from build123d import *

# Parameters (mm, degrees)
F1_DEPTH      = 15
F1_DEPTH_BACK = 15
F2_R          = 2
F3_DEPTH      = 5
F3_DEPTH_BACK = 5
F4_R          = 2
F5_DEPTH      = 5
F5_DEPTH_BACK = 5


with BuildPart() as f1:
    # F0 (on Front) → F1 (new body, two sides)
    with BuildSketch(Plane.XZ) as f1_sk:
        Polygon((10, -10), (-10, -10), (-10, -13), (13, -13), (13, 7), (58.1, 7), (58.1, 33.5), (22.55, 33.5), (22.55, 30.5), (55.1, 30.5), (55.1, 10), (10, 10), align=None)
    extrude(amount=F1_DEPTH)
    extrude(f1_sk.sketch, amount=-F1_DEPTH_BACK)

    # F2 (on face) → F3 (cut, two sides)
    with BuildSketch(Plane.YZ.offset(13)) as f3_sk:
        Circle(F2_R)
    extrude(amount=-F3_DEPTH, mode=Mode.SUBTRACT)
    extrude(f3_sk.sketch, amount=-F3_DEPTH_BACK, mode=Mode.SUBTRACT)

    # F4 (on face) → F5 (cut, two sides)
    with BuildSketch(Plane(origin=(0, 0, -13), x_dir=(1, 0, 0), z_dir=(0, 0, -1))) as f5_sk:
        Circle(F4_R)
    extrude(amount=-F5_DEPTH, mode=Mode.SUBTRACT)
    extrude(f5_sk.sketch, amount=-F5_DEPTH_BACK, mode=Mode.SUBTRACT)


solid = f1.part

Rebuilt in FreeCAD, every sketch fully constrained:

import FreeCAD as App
import Part
import Sketcher

V = App.Vector


def add_polygon(sketch, points):
    """Adds a closed chain of lines whose ends are joined by coincident constraints."""
    first, n = sketch.GeometryCount, len(points)
    for a, b in zip(points, points[1:] + points[:1]):
        sketch.addGeometry(Part.LineSegment(App.Vector(*a, 0), App.Vector(*b, 0)), False)
    for i in range(n):
        sketch.addConstraint(Sketcher.Constraint("Coincident", first + i, 2, first + (i + 1) % n, 1))

doc = App.newDocument("Part")
params = doc.addObject("Spreadsheet::Sheet", "Params")
for row, (alias, value) in enumerate([
    ("sketch1_width", "20 mm"),
    ("sketch1_width2", "23 mm"),
    ("sketch1_height", "3 mm"),
    ("sketch1_width3", "45.1 mm"),
    ("sketch1_height2", "26.5 mm"),
    ("pad1_length", "15 mm"),
    ("pad1_length2", "15 mm"),
    ("sketch2_diameter", "4 mm"),
    ("pocket1_length", "5 mm"),
    ("pocket2_length", "5 mm"),
    ("sketch3_diameter", "4 mm"),
    ("pocket3_length", "5 mm"),
    ("pocket4_length", "5 mm"),
], start=1):
    params.set(f"A{row}", alias)
    params.set(f"B{row}", "=" + value)
    params.setAlias(f"B{row}", alias)

body = doc.addObject("PartDesign::Body", "Body")

# Sketch on XZ plane
sketch1 = doc.addObject("Sketcher::SketchObject", "Sketch")
body.addObject(sketch1)
sketch1.AttachmentSupport = (doc.XZ_Plane, [""])
sketch1.MapMode = "FlatFace"
add_polygon(sketch1, [(10, -10), (-10, -10), (-10, -13), (13, -13), (13, 7), (58.1, 7), (58.1, 33.5), (22.6, 33.5), (22.6, 30.5), (55.1, 30.5), (55.1, 10), (10, 10)])  # lines 0-11
sketch1.addConstraint([
    Sketcher.Constraint("Horizontal", 0),
    Sketcher.Constraint("Vertical", 1),
    Sketcher.Constraint("Horizontal", 2),
    Sketcher.Constraint("Vertical", 3),
    Sketcher.Constraint("Horizontal", 4),
    Sketcher.Constraint("Vertical", 5),
    Sketcher.Constraint("Horizontal", 6),
    Sketcher.Constraint("Vertical", 7),
    Sketcher.Constraint("Horizontal", 8),
    Sketcher.Constraint("Vertical", 9),
    Sketcher.Constraint("Horizontal", 10),
    Sketcher.Constraint("Vertical", 11),
    Sketcher.Constraint("Symmetric", 0, 2, 10, 2, -1, 1),
    Sketcher.Constraint("Equal", 4, 10),
    Sketcher.Constraint("Equal", 0, 3),
    Sketcher.Constraint("Equal", 1, 7),
    Sketcher.Constraint("Equal", 3, 11),
    Sketcher.Constraint("DistanceX", 0, 2, 0, 1, 20.0),
    Sketcher.Constraint("DistanceX", 2, 1, 2, 2, 23.0),
    Sketcher.Constraint("DistanceY", 1, 2, 1, 1, 3.0),
    Sketcher.Constraint("DistanceX", 4, 1, 4, 2, 45.1),
    Sketcher.Constraint("DistanceY", 5, 1, 5, 2, 26.5),
    Sketcher.Constraint("DistanceX", 6, 2, 6, 1, 35.55),
])
sketch1.setExpression("Constraints[29]", "Params.sketch1_width")
sketch1.setExpression("Constraints[30]", "Params.sketch1_width2")
sketch1.setExpression("Constraints[31]", "Params.sketch1_height")
sketch1.setExpression("Constraints[32]", "Params.sketch1_width3")
sketch1.setExpression("Constraints[33]", "Params.sketch1_height2")
pad1 = doc.addObject("PartDesign::Pad", "Pad")
body.addObject(pad1)
pad1.Profile = sketch1
pad1.Type = "TwoLengths"
pad1.setExpression("Length", "Params.pad1_length")
pad1.setExpression("Length2", "Params.pad1_length2")

# Sketch on YZ plane
sketch2 = doc.addObject("Sketcher::SketchObject", "Sketch001")
body.addObject(sketch2)
sketch2.AttachmentSupport = (doc.YZ_Plane, [""])
sketch2.MapMode = "FlatFace"
sketch2.AttachmentOffset = App.Placement(V(0, 0, 13), App.Rotation())
sketch2.addGeometry(Part.Circle(V(0, 0, 0), V(0, 0, 1), 2), False)
sketch2.addConstraint([
    Sketcher.Constraint("Coincident", 0, 3, -1, 1),
    Sketcher.Constraint("Diameter", 0, 4.0),
])
sketch2.setExpression("Constraints[1]", "Params.sketch2_diameter")
pocket1 = doc.addObject("PartDesign::Pocket", "Pocket")
body.addObject(pocket1)
pocket1.Profile = sketch2
pocket1.setExpression("Length", "Params.pocket1_length")
pocket2 = doc.addObject("PartDesign::Pocket", "Pocket001")
body.addObject(pocket2)
pocket2.Profile = sketch2
pocket2.setExpression("Length", "Params.pocket2_length")

# Sketch on XY plane
sketch3 = doc.addObject("Sketcher::SketchObject", "Sketch002")
body.addObject(sketch3)
sketch3.AttachmentSupport = (doc.XY_Plane, [""])
sketch3.MapMode = "FlatFace"
sketch3.AttachmentOffset = App.Placement(V(0, 0, -13), App.Rotation())
sketch3.addGeometry(Part.Circle(V(0, 0, 0), V(0, 0, 1), 2), False)
sketch3.addConstraint([
    Sketcher.Constraint("Coincident", 0, 3, -1, 1),
    Sketcher.Constraint("Diameter", 0, 4.0),
])
sketch3.setExpression("Constraints[1]", "Params.sketch3_diameter")
pocket3 = doc.addObject("PartDesign::Pocket", "Pocket002")
body.addObject(pocket3)
pocket3.Profile = sketch3
pocket3.setExpression("Length", "Params.pocket3_length")
pocket3.Reversed = True
pocket4 = doc.addObject("PartDesign::Pocket", "Pocket003")
body.addObject(pocket4)
pocket4.Profile = sketch3
pocket4.setExpression("Length", "Params.pocket4_length")
pocket4.Reversed = True

doc.recompute()
